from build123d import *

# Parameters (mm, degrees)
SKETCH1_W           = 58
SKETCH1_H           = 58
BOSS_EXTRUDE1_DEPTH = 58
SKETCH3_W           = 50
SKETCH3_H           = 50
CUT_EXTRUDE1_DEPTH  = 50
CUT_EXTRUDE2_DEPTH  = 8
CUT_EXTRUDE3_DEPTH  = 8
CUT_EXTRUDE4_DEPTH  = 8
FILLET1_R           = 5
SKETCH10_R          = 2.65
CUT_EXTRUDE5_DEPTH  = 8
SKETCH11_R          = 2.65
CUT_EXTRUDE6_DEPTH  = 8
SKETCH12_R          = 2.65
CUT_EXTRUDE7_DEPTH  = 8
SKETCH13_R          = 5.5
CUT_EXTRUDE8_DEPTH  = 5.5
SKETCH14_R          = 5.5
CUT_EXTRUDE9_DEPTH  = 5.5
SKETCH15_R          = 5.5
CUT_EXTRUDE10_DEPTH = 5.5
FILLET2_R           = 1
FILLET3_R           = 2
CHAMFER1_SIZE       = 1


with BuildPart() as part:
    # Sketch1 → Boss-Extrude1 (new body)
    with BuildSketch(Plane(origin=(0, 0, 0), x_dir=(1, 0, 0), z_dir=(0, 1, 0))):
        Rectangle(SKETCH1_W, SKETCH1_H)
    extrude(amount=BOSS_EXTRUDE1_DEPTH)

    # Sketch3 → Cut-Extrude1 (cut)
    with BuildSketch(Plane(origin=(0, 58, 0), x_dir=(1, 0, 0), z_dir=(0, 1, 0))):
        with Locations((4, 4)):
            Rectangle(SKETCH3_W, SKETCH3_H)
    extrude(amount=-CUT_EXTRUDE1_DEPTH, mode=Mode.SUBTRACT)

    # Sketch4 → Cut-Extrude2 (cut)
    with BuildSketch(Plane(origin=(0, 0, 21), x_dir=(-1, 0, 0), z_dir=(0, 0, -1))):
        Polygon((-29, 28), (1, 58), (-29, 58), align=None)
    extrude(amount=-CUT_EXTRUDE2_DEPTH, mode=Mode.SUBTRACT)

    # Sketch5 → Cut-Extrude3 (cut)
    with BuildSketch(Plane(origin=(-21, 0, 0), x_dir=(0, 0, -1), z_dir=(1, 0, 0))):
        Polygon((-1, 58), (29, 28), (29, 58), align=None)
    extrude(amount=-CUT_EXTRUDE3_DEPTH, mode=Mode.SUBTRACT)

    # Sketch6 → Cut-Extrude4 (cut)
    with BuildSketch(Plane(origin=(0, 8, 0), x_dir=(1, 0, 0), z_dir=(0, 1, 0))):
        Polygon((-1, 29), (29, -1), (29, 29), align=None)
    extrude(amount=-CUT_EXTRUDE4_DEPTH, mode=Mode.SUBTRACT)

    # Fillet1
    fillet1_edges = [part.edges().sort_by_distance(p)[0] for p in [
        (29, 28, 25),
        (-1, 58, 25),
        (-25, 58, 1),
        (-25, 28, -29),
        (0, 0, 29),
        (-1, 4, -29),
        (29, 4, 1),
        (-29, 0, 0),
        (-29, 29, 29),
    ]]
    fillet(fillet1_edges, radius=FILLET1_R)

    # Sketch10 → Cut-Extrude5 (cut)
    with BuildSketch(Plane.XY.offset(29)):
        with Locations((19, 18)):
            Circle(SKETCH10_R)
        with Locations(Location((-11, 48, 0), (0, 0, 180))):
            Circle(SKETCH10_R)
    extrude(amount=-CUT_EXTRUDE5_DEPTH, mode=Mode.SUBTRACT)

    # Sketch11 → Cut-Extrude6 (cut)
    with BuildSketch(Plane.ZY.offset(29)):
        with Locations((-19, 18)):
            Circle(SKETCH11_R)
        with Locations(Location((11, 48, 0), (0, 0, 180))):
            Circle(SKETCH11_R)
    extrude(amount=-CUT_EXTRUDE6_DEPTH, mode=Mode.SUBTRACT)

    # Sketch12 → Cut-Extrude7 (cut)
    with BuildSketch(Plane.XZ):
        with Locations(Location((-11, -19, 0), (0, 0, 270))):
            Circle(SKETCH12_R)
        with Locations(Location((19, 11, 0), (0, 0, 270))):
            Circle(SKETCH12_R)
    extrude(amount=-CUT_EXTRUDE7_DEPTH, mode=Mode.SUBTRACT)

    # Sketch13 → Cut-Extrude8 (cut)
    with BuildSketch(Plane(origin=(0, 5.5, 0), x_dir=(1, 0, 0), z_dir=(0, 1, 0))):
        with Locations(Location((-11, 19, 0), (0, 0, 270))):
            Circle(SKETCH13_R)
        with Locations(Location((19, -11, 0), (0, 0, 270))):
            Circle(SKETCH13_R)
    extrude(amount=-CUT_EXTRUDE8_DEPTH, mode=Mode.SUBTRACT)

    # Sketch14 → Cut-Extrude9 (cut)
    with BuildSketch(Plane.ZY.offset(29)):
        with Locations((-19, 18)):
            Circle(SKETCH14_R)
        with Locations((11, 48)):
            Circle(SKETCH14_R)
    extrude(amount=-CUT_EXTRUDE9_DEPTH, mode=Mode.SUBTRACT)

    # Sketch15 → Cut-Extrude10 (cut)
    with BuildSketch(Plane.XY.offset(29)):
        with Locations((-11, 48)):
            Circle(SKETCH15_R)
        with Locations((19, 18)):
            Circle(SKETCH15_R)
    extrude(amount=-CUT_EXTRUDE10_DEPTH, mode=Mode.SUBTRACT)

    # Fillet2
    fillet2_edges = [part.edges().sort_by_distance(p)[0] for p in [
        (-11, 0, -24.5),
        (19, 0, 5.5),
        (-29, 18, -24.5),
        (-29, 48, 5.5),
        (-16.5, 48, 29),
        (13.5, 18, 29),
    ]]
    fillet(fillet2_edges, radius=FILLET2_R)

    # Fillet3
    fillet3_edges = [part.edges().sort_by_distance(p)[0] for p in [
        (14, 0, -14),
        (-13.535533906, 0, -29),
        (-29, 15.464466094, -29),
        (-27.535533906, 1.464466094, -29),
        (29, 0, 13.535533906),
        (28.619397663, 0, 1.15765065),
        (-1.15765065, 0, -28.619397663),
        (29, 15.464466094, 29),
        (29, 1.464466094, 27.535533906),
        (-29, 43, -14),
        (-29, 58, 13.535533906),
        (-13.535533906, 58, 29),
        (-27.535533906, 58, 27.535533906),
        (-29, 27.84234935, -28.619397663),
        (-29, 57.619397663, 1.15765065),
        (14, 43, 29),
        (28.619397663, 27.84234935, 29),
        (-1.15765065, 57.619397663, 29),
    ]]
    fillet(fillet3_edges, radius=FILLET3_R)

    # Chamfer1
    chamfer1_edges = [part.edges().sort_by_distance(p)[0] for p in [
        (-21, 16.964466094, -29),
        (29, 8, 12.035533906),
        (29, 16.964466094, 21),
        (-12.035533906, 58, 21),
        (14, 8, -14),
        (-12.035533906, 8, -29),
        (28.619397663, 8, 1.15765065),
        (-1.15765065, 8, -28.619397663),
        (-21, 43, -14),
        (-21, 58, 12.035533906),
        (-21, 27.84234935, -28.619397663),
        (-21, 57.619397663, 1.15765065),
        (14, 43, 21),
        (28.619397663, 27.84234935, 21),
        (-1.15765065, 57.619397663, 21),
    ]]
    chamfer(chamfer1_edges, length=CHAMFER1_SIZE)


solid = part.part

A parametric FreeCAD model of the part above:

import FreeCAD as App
import Part
import Sketcher


def edges_at(feature, points):
    """Names of the edges that pass closest to the given points."""
    edges = feature.Shape.Edges
    near = lambda p: min(range(len(edges)), key=lambda i: edges[i].distToShape(Part.Vertex(*p))[0])
    return sorted({f"Edge{near(p) + 1}" for p in points})


def add_polygon(sketch, points):
    """Adds a closed chain of lines whose ends are joined by coincident constraints."""
    first, n = sketch.GeometryCount, len(points)
    for a, b in zip(points, points[1:] + points[:1]):
        sketch.addGeometry(Part.LineSegment(App.Vector(*a, 0), App.Vector(*b, 0)), False)
    for i in range(n):
        sketch.addConstraint(Sketcher.Constraint("Coincident", first + i, 2, first + (i + 1) % n, 1))

doc = App.newDocument("Part")
params = doc.addObject("Spreadsheet::Sheet", "Params")
for row, (alias, value) in enumerate([
    ("sketch1_width", "58 mm"),
    ("pad1_length", "58 mm"),
    ("sketch2_width", "50 mm"),
    ("pocket1_length", "50 mm"),
    ("sketch3_width", "30 mm"),
    ("pocket2_length", "8 mm"),
    ("sketch4_width", "30 mm"),
    ("pocket3_length", "8 mm"),
    ("sketch5_width", "30 mm"),
    ("pocket4_length", "8 mm"),
    ("fillet_radius", "5 mm"),
    ("sketch6_diameter", "5.3 mm"),
    ("pocket5_length", "8 mm"),
    ("sketch7_diameter", "5.3 mm"),
    ("pocket6_length", "8 mm"),
    ("sketch8_diameter", "5.3 mm"),
    ("pocket7_length", "8 mm"),
    ("sketch9_diameter", "11 mm"),
    ("pocket8_length", "5.5 mm"),
    ("sketch10_diameter", "11 mm"),
    ("pocket9_length", "5.5 mm"),
    ("sketch11_diameter", "11 mm"),
    ("pocket10_length", "5.5 mm"),
    ("fillet2_radius", "1 mm"),
    ("fillet3_radius", "2 mm"),
    ("chamfer_size", "1 mm"),
], start=1):
    params.set(f"A{row}", alias)
    params.set(f"B{row}", "=" + value)
    params.setAlias(f"B{row}", alias)

body = doc.addObject("PartDesign::Body", "Body")

# Sketch on XZ plane
sketch1 = body.newObject("Sketcher::SketchObject", "Sketch")
sketch1.AttachmentSupport = (doc.getObject("XZ_Plane"), [""])
sketch1.MapMode = "FlatFace"
add_polygon(sketch1, [(-29, -29), (-29, 29), (29, 29), (29, -29)])  # lines 0-3
sketch1.addConstraint(Sketcher.Constraint("Vertical", 0))
sketch1.addConstraint(Sketcher.Constraint("Horizontal", 1))
sketch1.addConstraint(Sketcher.Constraint("Vertical", 2))
sketch1.addConstraint(Sketcher.Constraint("Horizontal", 3))
sketch1.addConstraint(Sketcher.Constraint("Symmetric", 0, 2, 2, 2, -1, 1))
sketch1.addConstraint(Sketcher.Constraint("Equal", 3, 0))
sketch1.addConstraint(Sketcher.Constraint("DistanceX", 1, 1, 1, 2, 58.0))
sketch1.setExpression("Constraints[10]", "Params.sketch1_width")
pad1 = body.newObject("PartDesign::Pad", "Pad")
pad1.Profile = sketch1
pad1.setExpression("Length", "Params.pad1_length")
pad1.Reversed = True

# Sketch on XZ plane
sketch2 = body.newObject("Sketcher::SketchObject", "Sketch001")
sketch2.AttachmentSupport = (doc.getObject("XZ_Plane"), [""])
sketch2.MapMode = "FlatFace"
sketch2.AttachmentOffset = App.Placement(App.Vector(0, 0, -58), App.Rotation())
add_polygon(sketch2, [(-21, -29), (-21, 21), (29, 21), (29, -29)])  # lines 0-3
sketch2.addConstraint(Sketcher.Constraint("Vertical", 0))
sketch2.addConstraint(Sketcher.Constraint("Horizontal", 1))
sketch2.addConstraint(Sketcher.Constraint("Vertical", 2))
sketch2.addConstraint(Sketcher.Constraint("Horizontal", 3))
sketch2.addConstraint(Sketcher.Constraint("Equal", 3, 0))
sketch2.addConstraint(Sketcher.Constraint("DistanceX", 1, 1, 1, 2, 50.0))
sketch2.addConstraint(Sketcher.Constraint("DistanceX", 0, 2, -1, 1, 21.0))
sketch2.addConstraint(Sketcher.Constraint("DistanceY", -1, 1, 0, 2, 21.0))
sketch2.setExpression("Constraints[9]", "Params.sketch2_width")
pocket1 = body.newObject("PartDesign::Pocket", "Pocket")
pocket1.Profile = sketch2
pocket1.setExpression("Length", "Params.pocket1_length")
pocket1.Reversed = True

# Sketch on XY plane
sketch3 = body.newObject("Sketcher::SketchObject", "Sketch002")
sketch3.AttachmentSupport = (doc.getObject("XY_Plane"), [""])
sketch3.MapMode = "FlatFace"
sketch3.AttachmentOffset = App.Placement(App.Vector(0, 0, 21), App.Rotation())
add_polygon(sketch3, [(29, 28), (-1, 58), (29, 58)])  # lines 0-2
sketch3.addConstraint(Sketcher.Constraint("Horizontal", 1))
sketch3.addConstraint(Sketcher.Constraint("Vertical", 2))
sketch3.addConstraint(Sketcher.Constraint("Equal", 1, 2))
sketch3.addConstraint(Sketcher.Constraint("DistanceX", 1, 1, 1, 2, 30.0))
sketch3.addConstraint(Sketcher.Constraint("DistanceX", 0, 2, -1, 1, 1.0))
sketch3.addConstraint(Sketcher.Constraint("DistanceY", -1, 1, 0, 2, 58.0))
sketch3.setExpression("Constraints[6]", "Params.sketch3_width")
pocket2 = body.newObject("PartDesign::Pocket", "Pocket001")
pocket2.Profile = sketch3
pocket2.setExpression("Length", "Params.pocket2_length")
pocket2.Reversed = True

# Sketch on YZ plane
sketch4 = body.newObject("Sketcher::SketchObject", "Sketch003")
sketch4.AttachmentSupport = (doc.getObject("YZ_Plane"), [""])
sketch4.MapMode = "FlatFace"
sketch4.AttachmentOffset = App.Placement(App.Vector(0, 0, -21), App.Rotation())
add_polygon(sketch4, [(58, 1), (28, -29), (58, -29)])  # lines 0-2
sketch4.addConstraint(Sketcher.Constraint("Horizontal", 1))
sketch4.addConstraint(Sketcher.Constraint("Vertical", 2))
sketch4.addConstraint(Sketcher.Constraint("Equal", 1, 2))
sketch4.addConstraint(Sketcher.Constraint("DistanceX", 1, 1, 1, 2, 30.0))
sketch4.addConstraint(Sketcher.Constraint("DistanceX", -1, 1, 0, 2, 28.0))
sketch4.addConstraint(Sketcher.Constraint("DistanceY", 0, 2, -1, 1, 29.0))
sketch4.setExpression("Constraints[6]", "Params.sketch4_width")
pocket3 = body.newObject("PartDesign::Pocket", "Pocket002")
pocket3.Profile = sketch4
pocket3.setExpression("Length", "Params.pocket3_length")

# Sketch on XZ plane
sketch5 = body.newObject("Sketcher::SketchObject", "Sketch004")
sketch5.AttachmentSupport = (doc.getObject("XZ_Plane"), [""])
sketch5.MapMode = "FlatFace"
sketch5.AttachmentOffset = App.Placement(App.Vector(0, 0, -8), App.Rotation())
add_polygon(sketch5, [(-1, -29), (29, 1), (29, -29)])  # lines 0-2
sketch5.addConstraint(Sketcher.Constraint("Vertical", 1))
sketch5.addConstraint(Sketcher.Constraint("Horizontal", 2))
sketch5.addConstraint(Sketcher.Constraint("Equal", 2, 1))
sketch5.addConstraint(Sketcher.Constraint("DistanceX", 2, 2, 2, 1, 30.0))
sketch5.addConstraint(Sketcher.Constraint("DistanceX", -1, 1, 0, 2, 29.0))
sketch5.addConstraint(Sketcher.Constraint("DistanceY", -1, 1, 0, 2, 1.0))
sketch5.setExpression("Constraints[6]", "Params.sketch5_width")
pocket4 = body.newObject("PartDesign::Pocket", "Pocket003")
pocket4.Profile = sketch5
pocket4.setExpression("Length", "Params.pocket4_length")
pocket4.Reversed = True
doc.recompute()

fillet = body.newObject("PartDesign::Fillet", "Fillet")
fillet.Base = (pocket4, edges_at(pocket4, [
    (29, 28, 25),
    (-1, 58, 25),
    (-25, 58, 1),
    (-25, 28, -29),
    (0, 0, 29),
    (-1, 4, -29),
    (29, 4, 1),
    (-29, 0, 0),
    (-29, 29, 29),
]))
fillet.setExpression("Radius", "Params.fillet_radius")

# Sketch on XY plane
sketch6 = body.newObject("Sketcher::SketchObject", "Sketch005")
sketch6.AttachmentSupport = (doc.getObject("XY_Plane"), [""])
sketch6.MapMode = "FlatFace"
sketch6.AttachmentOffset = App.Placement(App.Vector(0, 0, 29), App.Rotation())
sketch6.addGeometry(Part.Circle(App.Vector(19, 18, 0), App.Vector(0, 0, 1), 2.6), False)
sketch6.addGeometry(Part.Circle(App.Vector(-11, 48, 0), App.Vector(0, 0, 1), 2.6), False)
sketch6.addConstraint(Sketcher.Constraint("Equal", 0, 1))
sketch6.addConstraint(Sketcher.Constraint("Diameter", 0, 5.3))
sketch6.addConstraint(Sketcher.Constraint("DistanceX", -1, 1, 0, 3, 19.0))
sketch6.addConstraint(Sketcher.Constraint("DistanceY", -1, 1, 0, 3, 18.0))
sketch6.addConstraint(Sketcher.Constraint("DistanceX", 1, 3, -1, 1, 11.0))
sketch6.addConstraint(Sketcher.Constraint("DistanceY", -1, 1, 1, 3, 48.0))
sketch6.setExpression("Constraints[1]", "Params.sketch6_diameter")
pocket5 = body.newObject("PartDesign::Pocket", "Pocket004")
pocket5.Profile = sketch6
pocket5.setExpression("Length", "Params.pocket5_length")

# Sketch on YZ plane
sketch7 = body.newObject("Sketcher::SketchObject", "Sketch006")
sketch7.AttachmentSupport = (doc.getObject("YZ_Plane"), [""])
sketch7.MapMode = "FlatFace"
sketch7.AttachmentOffset = App.Placement(App.Vector(0, 0, -29), App.Rotation())
sketch7.addGeometry(Part.Circle(App.Vector(18, -19, 0), App.Vector(0, 0, 1), 2.6), False)
sketch7.addGeometry(Part.Circle(App.Vector(48, 11, 0), App.Vector(0, 0, 1), 2.6), False)
sketch7.addConstraint(Sketcher.Constraint("Equal", 0, 1))
sketch7.addConstraint(Sketcher.Constraint("Diameter", 0, 5.3))
sketch7.addConstraint(Sketcher.Constraint("DistanceX", -1, 1, 0, 3, 18.0))
sketch7.addConstraint(Sketcher.Constraint("DistanceY", 0, 3, -1, 1, 19.0))
sketch7.addConstraint(Sketcher.Constraint("DistanceX", -1, 1, 1, 3, 48.0))
sketch7.addConstraint(Sketcher.Constraint("DistanceY", -1, 1, 1, 3, 11.0))
sketch7.setExpression("Constraints[1]", "Params.sketch7_diameter")
pocket6 = body.newObject("PartDesign::Pocket", "Pocket005")
pocket6.Profile = sketch7
pocket6.setExpression("Length", "Params.pocket6_length")
pocket6.Reversed = True

# Sketch on XZ plane
sketch8 = body.newObject("Sketcher::SketchObject", "Sketch007")
sketch8.AttachmentSupport = (doc.getObject("XZ_Plane"), [""])
sketch8.MapMode = "FlatFace"
sketch8.addGeometry(Part.Circle(App.Vector(-11, -19, 0), App.Vector(0, 0, 1), 2.6), False)
sketch8.addGeometry(Part.Circle(App.Vector(19, 11, 0), App.Vector(0, 0, 1), 2.6), False)
sketch8.addConstraint(Sketcher.Constraint("Equal", 0, 1))
sketch8.addConstraint(Sketcher.Constraint("Diameter", 0, 5.3))
sketch8.addConstraint(Sketcher.Constraint("DistanceX", 0, 3, -1, 1, 11.0))
sketch8.addConstraint(Sketcher.Constraint("DistanceY", 0, 3, -1, 1, 19.0))
sketch8.addConstraint(Sketcher.Constraint("DistanceX", -1, 1, 1, 3, 19.0))
sketch8.addConstraint(Sketcher.Constraint("DistanceY", -1, 1, 1, 3, 11.0))
sketch8.setExpression("Constraints[1]", "Params.sketch8_diameter")
pocket7 = body.newObject("PartDesign::Pocket", "Pocket006")
pocket7.Profile = sketch8
pocket7.setExpression("Length", "Params.pocket7_length")

# Sketch on XZ plane
sketch9 = body.newObject("Sketcher::SketchObject", "Sketch008")
sketch9.AttachmentSupport = (doc.getObject("XZ_Plane"), [""])
sketch9.MapMode = "FlatFace"
sketch9.AttachmentOffset = App.Placement(App.Vector(0, 0, -5.5), App.Rotation())
sketch9.addGeometry(Part.Circle(App.Vector(-11, -19, 0), App.Vector(0, 0, 1), 6), False)
sketch9.addGeometry(Part.Circle(App.Vector(19, 11, 0), App.Vector(0, 0, 1), 6), False)
sketch9.addConstraint(Sketcher.Constraint("Equal", 0, 1))
sketch9.addConstraint(Sketcher.Constraint("Diameter", 0, 11.0))
sketch9.addConstraint(Sketcher.Constraint("DistanceX", 0, 3, -1, 1, 11.0))
sketch9.addConstraint(Sketcher.Constraint("DistanceY", 0, 3, -1, 1, 19.0))
sketch9.addConstraint(Sketcher.Constraint("DistanceX", -1, 1, 1, 3, 19.0))
sketch9.addConstraint(Sketcher.Constraint("DistanceY", -1, 1, 1, 3, 11.0))
sketch9.setExpression("Constraints[1]", "Params.sketch9_diameter")
pocket8 = body.newObject("PartDesign::Pocket", "Pocket007")
pocket8.Profile = sketch9
pocket8.setExpression("Length", "Params.pocket8_length")
pocket8.Reversed = True

# Sketch on YZ plane
sketch10 = body.newObject("Sketcher::SketchObject", "Sketch009")
sketch10.AttachmentSupport = (doc.getObject("YZ_Plane"), [""])
sketch10.MapMode = "FlatFace"
sketch10.AttachmentOffset = App.Placement(App.Vector(0, 0, -29), App.Rotation())
sketch10.addGeometry(Part.Circle(App.Vector(18, -19, 0), App.Vector(0, 0, 1), 6), False)
sketch10.addGeometry(Part.Circle(App.Vector(48, 11, 0), App.Vector(0, 0, 1), 6), False)
sketch10.addConstraint(Sketcher.Constraint("Equal", 0, 1))
sketch10.addConstraint(Sketcher.Constraint("Diameter", 0, 11.0))
sketch10.addConstraint(Sketcher.Constraint("DistanceX", -1, 1, 0, 3, 18.0))
sketch10.addConstraint(Sketcher.Constraint("DistanceY", 0, 3, -1, 1, 19.0))
sketch10.addConstraint(Sketcher.Constraint("DistanceX", -1, 1, 1, 3, 48.0))
sketch10.addConstraint(Sketcher.Constraint("DistanceY", -1, 1, 1, 3, 11.0))
sketch10.setExpression("Constraints[1]", "Params.sketch10_diameter")
pocket9 = body.newObject("PartDesign::Pocket", "Pocket008")
pocket9.Profile = sketch10
pocket9.setExpression("Length", "Params.pocket9_length")
pocket9.Reversed = True

# Sketch on XY plane
sketch11 = body.newObject("Sketcher::SketchObject", "Sketch010")
sketch11.AttachmentSupport = (doc.getObject("XY_Plane"), [""])
sketch11.MapMode = "FlatFace"
sketch11.AttachmentOffset = App.Placement(App.Vector(0, 0, 29), App.Rotation())
sketch11.addGeometry(Part.Circle(App.Vector(-11, 48, 0), App.Vector(0, 0, 1), 6), False)
sketch11.addGeometry(Part.Circle(App.Vector(19, 18, 0), App.Vector(0, 0, 1), 6), False)
sketch11.addConstraint(Sketcher.Constraint("Equal", 0, 1))
sketch11.addConstraint(Sketcher.Constraint("Diameter", 0, 11.0))
sketch11.addConstraint(Sketcher.Constraint("DistanceX", 0, 3, -1, 1, 11.0))
sketch11.addConstraint(Sketcher.Constraint("DistanceY", -1, 1, 0, 3, 48.0))
sketch11.addConstraint(Sketcher.Constraint("DistanceX", -1, 1, 1, 3, 19.0))
sketch11.addConstraint(Sketcher.Constraint("DistanceY", -1, 1, 1, 3, 18.0))
sketch11.setExpression("Constraints[1]", "Params.sketch11_diameter")
pocket10 = body.newObject("PartDesign::Pocket", "Pocket009")
pocket10.Profile = sketch11
pocket10.setExpression("Length", "Params.pocket10_length")
doc.recompute()

fillet2 = body.newObject("PartDesign::Fillet", "Fillet001")
fillet2.Base = (pocket10, edges_at(pocket10, [
    (-11, 0, -24.5),
    (19, 0, 5.5),
    (-29, 18, -24.5),
    (-29, 48, 5.5),
    (-16.5, 48, 29),
    (13.5, 18, 29),
]))
fillet2.setExpression("Radius", "Params.fillet2_radius")
doc.recompute()

fillet3 = body.newObject("PartDesign::Fillet", "Fillet002")
fillet3.Base = (fillet2, edges_at(fillet2, [
    (14, 0, -14),
    (-13.536, 0, -29),
    (-29, 15.464, -29),
    (-27.536, 1.464, -29),
    (29, 0, 13.536),
    (28.619, 0, 1.158),
    (-1.158, 0, -28.619),
    (29, 15.464, 29),
    (29, 1.464, 27.536),
    (-29, 43, -14),
    (-29, 58, 13.536),
    (-13.536, 58, 29),
    (-27.536, 58, 27.536),
    (-29, 27.842, -28.619),
    (-29, 57.619, 1.158),
    (14, 43, 29),
    (28.619, 27.842, 29),
    (-1.158, 57.619, 29),
]))
fillet3.setExpression("Radius", "Params.fillet3_radius")
doc.recompute()

chamfer = body.newObject("PartDesign::Chamfer", "Chamfer")
chamfer.Base = (fillet3, edges_at(fillet3, [
    (-21, 16.964, -29),
    (29, 8, 12.036),
    (29, 16.964, 21),
    (-12.036, 58, 21),
    (14, 8, -14),
    (-12.036, 8, -29),
    (28.619, 8, 1.158),
    (-1.158, 8, -28.619),
    (-21, 43, -14),
    (-21, 58, 12.036),
    (-21, 27.842, -28.619),
    (-21, 57.619, 1.158),
    (14, 43, 21),
    (28.619, 27.842, 21),
    (-1.158, 57.619, 21),
]))
chamfer.setExpression("Size", "Params.chamfer_size")

doc.recompute()
